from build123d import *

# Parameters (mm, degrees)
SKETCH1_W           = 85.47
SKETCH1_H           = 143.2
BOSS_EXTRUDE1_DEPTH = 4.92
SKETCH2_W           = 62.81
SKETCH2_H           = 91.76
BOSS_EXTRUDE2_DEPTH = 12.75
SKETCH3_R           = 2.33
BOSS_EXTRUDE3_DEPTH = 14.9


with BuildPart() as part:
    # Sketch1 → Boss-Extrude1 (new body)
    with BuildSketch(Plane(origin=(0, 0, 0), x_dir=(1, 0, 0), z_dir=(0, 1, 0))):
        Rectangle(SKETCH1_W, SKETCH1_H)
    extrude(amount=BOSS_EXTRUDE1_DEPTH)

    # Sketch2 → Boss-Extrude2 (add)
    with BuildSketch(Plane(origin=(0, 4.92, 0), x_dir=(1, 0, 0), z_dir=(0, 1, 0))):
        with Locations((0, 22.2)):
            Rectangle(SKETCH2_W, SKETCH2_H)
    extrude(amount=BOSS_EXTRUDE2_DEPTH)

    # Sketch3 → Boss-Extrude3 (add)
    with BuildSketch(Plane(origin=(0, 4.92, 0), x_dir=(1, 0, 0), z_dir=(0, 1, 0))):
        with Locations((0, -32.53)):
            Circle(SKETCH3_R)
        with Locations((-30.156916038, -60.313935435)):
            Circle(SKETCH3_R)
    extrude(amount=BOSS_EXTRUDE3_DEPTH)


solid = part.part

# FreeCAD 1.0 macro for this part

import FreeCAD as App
import Part
import Sketcher


def add_polygon(sketch, points):
    """Adds a closed chain of lines whose ends are joined by coincident constraints."""
    first, n = sketch.GeometryCount, len(points)
    for a, b in zip(points, points[1:] + points[:1]):
        sketch.addGeometry(Part.LineSegment(App.Vector(*a, 0), App.Vector(*b, 0)), False)
    for i in range(n):
        sketch.addConstraint(Sketcher.Constraint("Coincident", first + i, 2, first + (i + 1) % n, 1))

doc = App.newDocument("Part")
params = doc.addObject("Spreadsheet::Sheet", "Params")
for row, (alias, value) in enumerate([
    ("sketch1_height", "143.2 mm"),
    ("sketch1_width", "85.47 mm"),
    ("pad1_length", "4.92 mm"),
    ("sketch2_width", "62.81 mm"),
    ("sketch2_height", "91.76 mm"),
    ("pad2_length", "12.75 mm"),
    ("sketch3_diameter", "4.66 mm"),
    ("pad3_length", "14.9 mm"),
], start=1):
    params.set(f"A{row}", alias)
    params.set(f"B{row}", "=" + value)
    params.setAlias(f"B{row}", alias)

body = doc.addObject("PartDesign::Body", "Body")

# Sketch on XZ plane
sketch1 = body.newObject("Sketcher::SketchObject", "Sketch")
sketch1.AttachmentSupport = (doc.getObject("XZ_Plane"), [""])
sketch1.MapMode = "FlatFace"
add_polygon(sketch1, [(-42.735, -71.6), (-42.735, 71.6), (42.735, 71.6), (42.735, -71.6)])  # lines 0-3
sketch1.addConstraint([
    Sketcher.Constraint("Vertical", 0),
    Sketcher.Constraint("Horizontal", 1),
    Sketcher.Constraint("Vertical", 2),
    Sketcher.Constraint("Horizontal", 3),
    Sketcher.Constraint("Symmetric", 0, 2, 2, 2, -1, 1),
    Sketcher.Constraint("DistanceY", 0, 1, 0, 2, 143.2),
    Sketcher.Constraint("DistanceX", 1, 1, 1, 2, 85.47),
])
sketch1.setExpression("Constraints[9]", "Params.sketch1_height")
sketch1.setExpression("Constraints[10]", "Params.sketch1_width")
pad1 = body.newObject("PartDesign::Pad", "Pad")
pad1.Profile = sketch1
pad1.setExpression("Length", "Params.pad1_length")
pad1.Reversed = True

# Sketch on XZ plane
sketch2 = body.newObject("Sketcher::SketchObject", "Sketch001")
sketch2.AttachmentSupport = (doc.getObject("XZ_Plane"), [""])
sketch2.MapMode = "FlatFace"
sketch2.AttachmentOffset = App.Placement(App.Vector(0, 0, -4.92), App.Rotation())
add_polygon(sketch2, [(-31.405, -68.08), (-31.405, 23.68), (31.405, 23.68), (31.405, -68.08)])  # lines 0-3
sketch2.addConstraint([
    Sketcher.Constraint("Vertical", 0),
    Sketcher.Constraint("Horizontal", 1),
    Sketcher.Constraint("Vertical", 2),
    Sketcher.Constraint("Horizontal", 3),
    Sketcher.Constraint("DistanceX", 1, 1, 1, 2, 62.81),
    Sketcher.Constraint("DistanceY", 0, 1, 0, 2, 91.76),
    Sketcher.Constraint("DistanceY", -1, 1, 0, 2, 23.68),
    Sketcher.Constraint("DistanceX", 0, 2, -1, 1, 31.405),
])
sketch2.setExpression("Constraints[8]", "Params.sketch2_width")
sketch2.setExpression("Constraints[9]", "Params.sketch2_height")
pad2 = body.newObject("PartDesign::Pad", "Pad001")
pad2.Profile = sketch2
pad2.setExpression("Length", "Params.pad2_length")
pad2.Reversed = True

# Sketch on XZ plane
sketch3 = body.newObject("Sketcher::SketchObject", "Sketch002")
sketch3.AttachmentSupport = (doc.getObject("XZ_Plane"), [""])
sketch3.MapMode = "FlatFace"
sketch3.AttachmentOffset = App.Placement(App.Vector(0, 0, -4.92), App.Rotation())
sketch3.addGeometry([
    Part.Circle(App.Vector(0, 32.53, 0), App.Vector(0, 0, 1), 2.33),
    Part.Circle(App.Vector(-30.156916, 60.313935, 0), App.Vector(0, 0, 1), 2.33),
], False)
sketch3.addConstraint([
    Sketcher.Constraint("Equal", 0, 1),
    Sketcher.Constraint("PointOnObject", 0, 3, -2),
    Sketcher.Constraint("Diameter", 0, 4.66),
    Sketcher.Constraint("DistanceY", -1, 1, 0, 3, 32.53),
    Sketcher.Constraint("DistanceX", 1, 3, -1, 1, 30.156916),
    Sketcher.Constraint("DistanceY", -1, 1, 1, 3, 60.313935),
])
sketch3.setExpression("Constraints[2]", "Params.sketch3_diameter")
pad3 = body.newObject("PartDesign::Pad", "Pad002")
pad3.Profile = sketch3
pad3.setExpression("Length", "Params.pad3_length")
pad3.Reversed = True

doc.recompute()
